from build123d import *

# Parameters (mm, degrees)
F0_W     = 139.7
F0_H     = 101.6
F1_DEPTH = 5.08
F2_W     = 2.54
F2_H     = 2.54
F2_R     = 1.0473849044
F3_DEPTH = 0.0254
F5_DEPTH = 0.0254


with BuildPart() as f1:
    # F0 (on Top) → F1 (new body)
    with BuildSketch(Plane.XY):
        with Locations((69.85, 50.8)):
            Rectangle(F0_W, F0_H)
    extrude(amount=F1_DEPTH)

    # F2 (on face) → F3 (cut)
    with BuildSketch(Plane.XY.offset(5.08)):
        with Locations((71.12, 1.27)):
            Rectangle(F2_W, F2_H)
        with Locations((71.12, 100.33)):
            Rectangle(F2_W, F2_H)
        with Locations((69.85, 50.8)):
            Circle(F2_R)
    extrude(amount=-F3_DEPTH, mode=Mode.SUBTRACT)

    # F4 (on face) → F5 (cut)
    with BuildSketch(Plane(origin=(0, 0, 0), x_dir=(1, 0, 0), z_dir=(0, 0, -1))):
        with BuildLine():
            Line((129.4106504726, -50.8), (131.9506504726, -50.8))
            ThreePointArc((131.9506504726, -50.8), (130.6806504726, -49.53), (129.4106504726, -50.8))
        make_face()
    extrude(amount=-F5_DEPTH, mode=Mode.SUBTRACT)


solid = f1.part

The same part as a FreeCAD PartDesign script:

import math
import FreeCAD as App
import Part
import Sketcher
Q = App.Units.Quantity


def add_polygon(sketch, points):
    """Adds a closed chain of lines whose ends are joined by coincident constraints."""
    first, n = sketch.GeometryCount, len(points)
    for a, b in zip(points, points[1:] + points[:1]):
        sketch.addGeometry(Part.LineSegment(App.Vector(*a, 0), App.Vector(*b, 0)), False)
    for i in range(n):
        sketch.addConstraint(Sketcher.Constraint("Coincident", first + i, 2, first + (i + 1) % n, 1))

doc = App.newDocument("Part")
body = doc.addObject("PartDesign::Body", "Body")

# Sketch on XY plane
sketch1 = body.newObject("Sketcher::SketchObject", "Sketch")
sketch1.AttachmentSupport = (doc.getObject("XY_Plane"), [""])
sketch1.MapMode = "FlatFace"
add_polygon(sketch1, [(0, 102), (0, 0), (140, 0), (140, 102)])  # lines 0-3
sketch1.addConstraint([
    Sketcher.Constraint("Vertical", 0),
    Sketcher.Constraint("Horizontal", 1),
    Sketcher.Constraint("Vertical", 2),
    Sketcher.Constraint("Horizontal", 3),
    Sketcher.Constraint("Coincident", 0, 2, -1, 1),
    Sketcher.Constraint("DistanceY", 0, 2, 0, 1, Q("4 in")),
    Sketcher.Constraint("DistanceX", 1, 1, 1, 2, Q("5.5 in")),
])
pad1 = body.newObject("PartDesign::Pad", "Pad")
pad1.Profile = sketch1
pad1.Length = Q("0.2 in")

# Sketch on XY plane
sketch2 = body.newObject("Sketcher::SketchObject", "Sketch001")
sketch2.AttachmentSupport = (doc.getObject("XY_Plane"), [""])
sketch2.MapMode = "FlatFace"
sketch2.AttachmentOffset = App.Placement(App.Vector(0, 0, 0.2 * 25.4), App.Rotation())
add_polygon(sketch2, [(69.8, 2.5), (69.8, 0), (72.4, 0), (72.4, 2.5)])  # lines 0-3
add_polygon(sketch2, [(69.8, 101.6), (69.8, 99.1), (72.4, 99.1), (72.4, 101.6)])  # lines 4-7
sketch2.addGeometry(Part.Circle(App.Vector(69.8, 50.8, 0), App.Vector(0, 0, 1), 1), False)  # 8
sketch2.addConstraint([
    Sketcher.Constraint("Vertical", 0),
    Sketcher.Constraint("Horizontal", 1),
    Sketcher.Constraint("Vertical", 2),
    Sketcher.Constraint("Horizontal", 3),
    Sketcher.Constraint("Vertical", 4),
    Sketcher.Constraint("Horizontal", 5),
    Sketcher.Constraint("Vertical", 6),
    Sketcher.Constraint("Horizontal", 7),
    Sketcher.Constraint("PointOnObject", 0, 2, -1),
    Sketcher.Constraint("Vertical", 8, 3, 0, 2),
    Sketcher.Constraint("Vertical", 3, 2, 4, 2),
    Sketcher.Constraint("Vertical", 2, 2, 5, 2),
    Sketcher.Constraint("Equal", 7, 0),
    Sketcher.Constraint("Equal", 2, 4),
    Sketcher.Constraint("DistanceX", 1, 1, 1, 2, Q("0.1 in")),
    Sketcher.Constraint("DistanceY", -1, 1, 8, 3, Q("2 in")),
    Sketcher.Constraint("DistanceY", -1, 1, 6, 2, Q("4 in")),
    Sketcher.Constraint("DistanceX", -1, 1, 8, 3, Q("2.75 in")),
    Sketcher.Constraint("Diameter", 8, Q("2.09477 mm")),
])
pocket1 = body.newObject("PartDesign::Pocket", "Pocket")
pocket1.Profile = sketch2
pocket1.Length = Q("0.001 in")

# Sketch on XY plane
sketch3 = body.newObject("Sketcher::SketchObject", "Sketch002")
sketch3.AttachmentSupport = (doc.getObject("XY_Plane"), [""])
sketch3.MapMode = "FlatFace"
sketch3.addGeometry([
    Part.LineSegment(App.Vector(129.4, 50.8, 0), App.Vector(132, 50.8, 0)),
    Part.ArcOfCircle(Part.Circle(App.Vector(130.7, 50.8, 0), App.Vector(0, 0, 1), 1.3), math.radians(180), math.radians(360)),
], False)
sketch3.addConstraint([
    Sketcher.Constraint("Coincident", 0, 1, 1, 1),
    Sketcher.Constraint("Coincident", 1, 2, 0, 2),
    Sketcher.Constraint("Horizontal", 0),
    Sketcher.Constraint("Horizontal", 1, 3, 0, 1),
    Sketcher.Constraint("Radius", 1, Q("0.05 in")),
    Sketcher.Constraint("DistanceY", -1, 1, 1, 3, Q("2 in")),
    Sketcher.Constraint("DistanceX", -1, 1, 1, 3, Q("130.68065 mm")),
])
pocket2 = body.newObject("PartDesign::Pocket", "Pocket001")
pocket2.Profile = sketch3
pocket2.Length = Q("0.001 in")
pocket2.Reversed = True

doc.recompute()
